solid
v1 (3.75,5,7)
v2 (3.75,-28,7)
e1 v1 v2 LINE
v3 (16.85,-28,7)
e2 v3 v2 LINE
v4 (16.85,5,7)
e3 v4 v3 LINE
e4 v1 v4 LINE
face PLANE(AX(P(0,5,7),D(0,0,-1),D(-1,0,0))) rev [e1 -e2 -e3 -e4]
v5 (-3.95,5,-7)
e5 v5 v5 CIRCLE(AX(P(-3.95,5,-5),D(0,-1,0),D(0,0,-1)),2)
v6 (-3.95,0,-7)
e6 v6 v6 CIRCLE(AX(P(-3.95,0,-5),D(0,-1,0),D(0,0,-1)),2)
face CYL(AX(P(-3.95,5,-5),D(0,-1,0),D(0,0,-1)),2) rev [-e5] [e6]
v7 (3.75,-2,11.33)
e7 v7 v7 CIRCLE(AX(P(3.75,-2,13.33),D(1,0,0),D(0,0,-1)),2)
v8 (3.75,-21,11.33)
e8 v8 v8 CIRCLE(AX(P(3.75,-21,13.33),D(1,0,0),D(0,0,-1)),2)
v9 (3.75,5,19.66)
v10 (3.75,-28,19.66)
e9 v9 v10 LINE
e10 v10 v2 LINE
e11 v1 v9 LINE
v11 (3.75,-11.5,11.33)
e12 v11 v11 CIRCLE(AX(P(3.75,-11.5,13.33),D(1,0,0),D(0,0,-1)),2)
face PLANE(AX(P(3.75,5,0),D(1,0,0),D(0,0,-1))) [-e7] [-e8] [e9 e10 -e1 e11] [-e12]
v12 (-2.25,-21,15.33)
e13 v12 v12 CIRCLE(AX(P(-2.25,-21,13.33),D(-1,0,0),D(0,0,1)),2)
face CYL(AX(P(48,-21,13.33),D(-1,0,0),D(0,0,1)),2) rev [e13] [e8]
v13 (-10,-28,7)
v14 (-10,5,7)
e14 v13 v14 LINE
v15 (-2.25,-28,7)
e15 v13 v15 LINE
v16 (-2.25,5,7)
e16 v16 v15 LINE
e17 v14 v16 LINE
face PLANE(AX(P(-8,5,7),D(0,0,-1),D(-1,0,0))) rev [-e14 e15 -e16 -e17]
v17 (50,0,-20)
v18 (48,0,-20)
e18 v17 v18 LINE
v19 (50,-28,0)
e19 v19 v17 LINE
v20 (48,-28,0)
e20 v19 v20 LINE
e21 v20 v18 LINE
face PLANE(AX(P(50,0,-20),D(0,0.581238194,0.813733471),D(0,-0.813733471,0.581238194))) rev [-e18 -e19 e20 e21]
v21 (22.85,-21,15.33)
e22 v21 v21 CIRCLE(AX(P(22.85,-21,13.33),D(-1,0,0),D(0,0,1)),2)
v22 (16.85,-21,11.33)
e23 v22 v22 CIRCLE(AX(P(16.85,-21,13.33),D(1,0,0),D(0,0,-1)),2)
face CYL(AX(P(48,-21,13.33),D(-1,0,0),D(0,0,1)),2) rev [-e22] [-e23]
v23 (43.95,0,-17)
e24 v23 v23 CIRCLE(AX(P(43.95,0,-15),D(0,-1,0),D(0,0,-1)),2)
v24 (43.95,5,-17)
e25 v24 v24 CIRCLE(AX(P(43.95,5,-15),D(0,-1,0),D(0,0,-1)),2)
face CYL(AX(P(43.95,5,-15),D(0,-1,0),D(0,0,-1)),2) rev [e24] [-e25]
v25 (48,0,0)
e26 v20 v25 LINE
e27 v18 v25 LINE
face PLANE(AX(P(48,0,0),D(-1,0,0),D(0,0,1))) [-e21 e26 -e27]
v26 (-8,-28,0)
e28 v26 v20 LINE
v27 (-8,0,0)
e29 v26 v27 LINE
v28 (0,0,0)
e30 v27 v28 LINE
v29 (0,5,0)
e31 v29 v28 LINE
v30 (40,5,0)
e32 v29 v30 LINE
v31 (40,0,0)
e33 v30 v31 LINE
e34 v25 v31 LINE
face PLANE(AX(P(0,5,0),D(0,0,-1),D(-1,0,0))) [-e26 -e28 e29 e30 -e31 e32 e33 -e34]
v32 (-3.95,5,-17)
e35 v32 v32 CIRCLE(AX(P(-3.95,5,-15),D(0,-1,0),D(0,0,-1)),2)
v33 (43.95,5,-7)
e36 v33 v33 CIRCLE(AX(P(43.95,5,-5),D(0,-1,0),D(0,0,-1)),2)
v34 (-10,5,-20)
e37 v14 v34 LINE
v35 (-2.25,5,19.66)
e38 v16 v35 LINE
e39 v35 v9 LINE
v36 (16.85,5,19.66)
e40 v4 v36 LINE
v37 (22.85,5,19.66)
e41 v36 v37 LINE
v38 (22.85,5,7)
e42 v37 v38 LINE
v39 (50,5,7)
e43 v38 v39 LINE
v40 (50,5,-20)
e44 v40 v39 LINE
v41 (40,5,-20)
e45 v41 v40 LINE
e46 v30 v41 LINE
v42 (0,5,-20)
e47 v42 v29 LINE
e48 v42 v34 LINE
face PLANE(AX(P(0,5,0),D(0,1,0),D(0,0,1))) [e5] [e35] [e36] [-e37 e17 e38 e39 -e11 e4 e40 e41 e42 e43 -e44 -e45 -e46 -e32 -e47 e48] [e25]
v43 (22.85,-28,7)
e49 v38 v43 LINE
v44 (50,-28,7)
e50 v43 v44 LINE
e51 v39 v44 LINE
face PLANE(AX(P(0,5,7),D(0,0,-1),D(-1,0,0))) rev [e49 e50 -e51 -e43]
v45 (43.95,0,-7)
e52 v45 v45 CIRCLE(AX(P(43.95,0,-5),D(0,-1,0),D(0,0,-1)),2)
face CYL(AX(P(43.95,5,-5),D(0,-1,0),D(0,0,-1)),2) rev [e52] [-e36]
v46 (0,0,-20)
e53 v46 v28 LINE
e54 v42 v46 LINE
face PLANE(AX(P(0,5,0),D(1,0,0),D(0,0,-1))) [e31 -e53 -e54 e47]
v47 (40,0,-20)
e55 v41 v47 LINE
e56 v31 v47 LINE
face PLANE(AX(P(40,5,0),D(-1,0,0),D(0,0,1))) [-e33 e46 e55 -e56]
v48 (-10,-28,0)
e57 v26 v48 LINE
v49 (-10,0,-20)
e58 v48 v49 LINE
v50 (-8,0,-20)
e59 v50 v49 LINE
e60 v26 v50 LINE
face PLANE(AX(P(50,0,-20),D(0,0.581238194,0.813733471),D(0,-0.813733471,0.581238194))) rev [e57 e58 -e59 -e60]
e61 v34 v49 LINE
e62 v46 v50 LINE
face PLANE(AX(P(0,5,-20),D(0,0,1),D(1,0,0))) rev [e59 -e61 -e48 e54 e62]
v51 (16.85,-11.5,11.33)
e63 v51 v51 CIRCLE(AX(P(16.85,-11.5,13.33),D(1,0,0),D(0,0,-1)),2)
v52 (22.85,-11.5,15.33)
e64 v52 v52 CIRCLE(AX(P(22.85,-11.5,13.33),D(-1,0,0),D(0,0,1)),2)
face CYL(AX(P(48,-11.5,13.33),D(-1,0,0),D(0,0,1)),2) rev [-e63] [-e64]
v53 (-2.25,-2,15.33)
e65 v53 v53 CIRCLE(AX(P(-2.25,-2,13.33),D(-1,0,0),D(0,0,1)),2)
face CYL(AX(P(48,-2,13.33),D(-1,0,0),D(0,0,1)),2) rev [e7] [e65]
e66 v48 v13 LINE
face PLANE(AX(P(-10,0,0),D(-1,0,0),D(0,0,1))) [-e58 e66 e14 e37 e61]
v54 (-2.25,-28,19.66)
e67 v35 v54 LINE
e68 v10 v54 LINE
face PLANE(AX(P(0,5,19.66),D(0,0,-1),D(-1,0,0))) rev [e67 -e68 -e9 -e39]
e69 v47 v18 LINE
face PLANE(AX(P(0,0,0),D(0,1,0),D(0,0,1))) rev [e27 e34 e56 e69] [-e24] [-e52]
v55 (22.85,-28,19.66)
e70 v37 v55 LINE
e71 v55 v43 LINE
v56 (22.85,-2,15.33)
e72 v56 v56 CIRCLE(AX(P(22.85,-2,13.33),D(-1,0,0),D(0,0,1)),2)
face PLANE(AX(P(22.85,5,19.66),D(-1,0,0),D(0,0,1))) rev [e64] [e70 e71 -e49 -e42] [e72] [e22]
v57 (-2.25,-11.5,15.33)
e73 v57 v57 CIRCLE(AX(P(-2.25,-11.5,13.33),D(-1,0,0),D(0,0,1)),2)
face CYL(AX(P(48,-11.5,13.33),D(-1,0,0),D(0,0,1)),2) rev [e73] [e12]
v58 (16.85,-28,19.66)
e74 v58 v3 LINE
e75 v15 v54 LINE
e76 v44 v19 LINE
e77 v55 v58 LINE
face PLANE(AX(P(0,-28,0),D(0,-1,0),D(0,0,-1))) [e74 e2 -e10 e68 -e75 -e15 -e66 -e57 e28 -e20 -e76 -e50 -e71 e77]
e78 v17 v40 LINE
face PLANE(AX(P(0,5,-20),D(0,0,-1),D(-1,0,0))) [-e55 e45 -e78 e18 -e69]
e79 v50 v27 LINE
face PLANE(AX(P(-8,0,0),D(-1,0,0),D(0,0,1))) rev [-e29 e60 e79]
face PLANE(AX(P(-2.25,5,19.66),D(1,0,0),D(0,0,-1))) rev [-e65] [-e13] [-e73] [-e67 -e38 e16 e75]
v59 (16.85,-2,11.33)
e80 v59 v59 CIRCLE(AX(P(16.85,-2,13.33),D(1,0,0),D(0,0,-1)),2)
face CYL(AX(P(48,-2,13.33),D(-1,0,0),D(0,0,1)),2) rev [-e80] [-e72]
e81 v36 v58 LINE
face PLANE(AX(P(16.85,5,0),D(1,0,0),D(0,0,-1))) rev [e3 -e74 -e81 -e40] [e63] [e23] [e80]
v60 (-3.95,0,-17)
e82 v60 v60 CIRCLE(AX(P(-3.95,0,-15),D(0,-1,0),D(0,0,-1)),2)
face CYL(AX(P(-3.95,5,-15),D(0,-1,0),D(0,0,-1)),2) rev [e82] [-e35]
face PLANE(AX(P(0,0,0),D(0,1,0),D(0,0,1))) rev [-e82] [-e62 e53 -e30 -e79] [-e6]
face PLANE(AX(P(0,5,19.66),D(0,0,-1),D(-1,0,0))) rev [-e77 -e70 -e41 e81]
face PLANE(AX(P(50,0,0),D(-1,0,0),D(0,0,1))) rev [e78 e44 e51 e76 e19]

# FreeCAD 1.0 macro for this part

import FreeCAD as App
import Part
import Sketcher
from FreeCAD import Vector
Q = App.Units.Quantity

doc = App.newDocument("Part")
params = doc.addObject("Spreadsheet::Sheet", "Params")
for row, (alias, value) in enumerate([
    ("sketch1_width", "8 mm"),
    ("sketch1_width2", "40 mm"),
    ("sketch1_height", "27 mm"),
    ("sketch1_height2", "20 mm"),
    ("sketch1_width3", "13.1 mm"),
    ("pad1_length", "5 mm"),
    ("sketch2_width", "36.6 mm"),
    ("sketch2_width2", "13.1 mm"),
    ("sketch2_height", "19.66 mm"),
    ("pad2_length", "28 mm"),
    ("sketch3_width", "5.75 mm"),
    ("sketch3_height", "12.66 mm"),
    ("sketch4_diameter", "4 mm"),
    ("sketch5_diameter", "4 mm"),
    ("sketch6_width", "28 mm"),
    ("sketch6_height", "7 mm"),
    ("pad3_length", "19.4 mm"),
    ("sketch7_width", "33 mm"),
    ("sketch7_height", "27 mm"),
    ("pad4_length", "2 mm"),
    ("sketch8_width", "33 mm"),
    ("sketch8_height", "27 mm"),
    ("pad5_length", "2 mm"),
    ("sketch9_width", "28 mm"),
    ("sketch9_height", "20 mm"),
], start=1):
    params.set(f"A{row}", alias)
    params.set(f"B{row}", "=" + value)
    params.setAlias(f"B{row}", alias)

body = doc.addObject("PartDesign::Body", "Body")

# Sketch on XZ plane
sketch1 = doc.addObject("Sketcher::SketchObject", "Sketch")
body.addObject(sketch1)
sketch1.AttachmentSupport = (doc.XZ_Plane, [""])
sketch1.MapMode = "FlatFace"
sketch1.addGeometry([
    Part.LineSegment(Vector(-8, -20, 0), Vector(-8, 20, 0)),  # 0
    Part.LineSegment(Vector(-8, 20, 0), Vector(4, 20, 0)),  # 1
    Part.LineSegment(Vector(4, 20, 0), Vector(4, 7, 0)),  # 2
    Part.LineSegment(Vector(4, 7, 0), Vector(17, 7, 0)),  # 3
    Part.LineSegment(Vector(17, 7, 0), Vector(17, 20, 0)),  # 4
    Part.LineSegment(Vector(17, 20, 0), Vector(29, 20, 0)),  # 5
    Part.LineSegment(Vector(29, 20, 0), Vector(29, 7, 0)),  # 6
    Part.LineSegment(Vector(29, 7, 0), Vector(48, 7, 0)),  # 7
    Part.LineSegment(Vector(48, 7, 0), Vector(48, -20, 0)),  # 8
    Part.LineSegment(Vector(48, -20, 0), Vector(40, -20, 0)),  # 9
    Part.LineSegment(Vector(40, -20, 0), Vector(40, 0, 0)),  # 10
    Part.LineSegment(Vector(40, 0, 0), Vector(0, 0, 0)),  # 11
    Part.LineSegment(Vector(0, 0, 0), Vector(0, -20, 0)),  # 12
    Part.LineSegment(Vector(0, -20, 0), Vector(-8, -20, 0)),  # 13
], False)
sketch1.addConstraint([
    Sketcher.Constraint("Coincident", 0, 2, 1, 1),
    Sketcher.Constraint("Coincident", 1, 2, 2, 1),
    Sketcher.Constraint("Coincident", 2, 2, 3, 1),
    Sketcher.Constraint("Coincident", 3, 2, 4, 1),
    Sketcher.Constraint("Coincident", 4, 2, 5, 1),
    Sketcher.Constraint("Coincident", 5, 2, 6, 1),
    Sketcher.Constraint("Coincident", 6, 2, 7, 1),
    Sketcher.Constraint("Coincident", 7, 2, 8, 1),
    Sketcher.Constraint("Coincident", 8, 2, 9, 1),
    Sketcher.Constraint("Coincident", 9, 2, 10, 1),
    Sketcher.Constraint("Coincident", 10, 2, 11, 1),
    Sketcher.Constraint("Coincident", 11, 2, 12, 1),
    Sketcher.Constraint("Coincident", 12, 2, 13, 1),
    Sketcher.Constraint("Coincident", 13, 2, 0, 1),
    Sketcher.Constraint("Vertical", 0),
    Sketcher.Constraint("Horizontal", 1),
    Sketcher.Constraint("Vertical", 2),
    Sketcher.Constraint("Horizontal", 3),
    Sketcher.Constraint("Vertical", 4),
    Sketcher.Constraint("Horizontal", 5),
    Sketcher.Constraint("Vertical", 6),
    Sketcher.Constraint("Horizontal", 7),
    Sketcher.Constraint("Vertical", 8),
    Sketcher.Constraint("Horizontal", 9),
    Sketcher.Constraint("Vertical", 10),
    Sketcher.Constraint("Horizontal", 11),
    Sketcher.Constraint("Vertical", 12),
    Sketcher.Constraint("Horizontal", 13),
    Sketcher.Constraint("Coincident", 11, 2, -1, 1),
    Sketcher.Constraint("Horizontal", 1, 2, 4, 2),
    Sketcher.Constraint("Horizontal", 3, 2, 6, 2),
    Sketcher.Constraint("Horizontal", 9, 2, 12, 2),
    Sketcher.Constraint("Equal", 1, 5),
    Sketcher.Constraint("Equal", 9, 13),
    Sketcher.Constraint("DistanceX", 9, 2, 9, 1, Q("8 mm")),
    Sketcher.Constraint("DistanceX", 11, 2, 11, 1, Q("40 mm")),
    Sketcher.Constraint("DistanceY", 8, 2, 8, 1, Q("27 mm")),
    Sketcher.Constraint("DistanceY", 10, 1, 10, 2, Q("20 mm")),
    Sketcher.Constraint("DistanceX", 3, 1, 3, 2, Q("13.1 mm")),
    Sketcher.Constraint("DistanceX", 7, 1, 7, 2, Q("19.4 mm")),
    Sketcher.Constraint("DistanceY", 0, 1, 0, 2, Q("39.66 mm")),
])
sketch1.setExpression("Constraints[34]", "Params.sketch1_width")
sketch1.setExpression("Constraints[35]", "Params.sketch1_width2")
sketch1.setExpression("Constraints[36]", "Params.sketch1_height")
sketch1.setExpression("Constraints[37]", "Params.sketch1_height2")
sketch1.setExpression("Constraints[38]", "Params.sketch1_width3")
pad1 = doc.addObject("PartDesign::Pad", "Pad")
body.addObject(pad1)
pad1.Profile = sketch1
pad1.setExpression("Length", "Params.pad1_length")
pad1.Reversed = True

# Sketch on XZ plane
sketch2 = doc.addObject("Sketcher::SketchObject", "Sketch001")
body.addObject(sketch2)
sketch2.AttachmentSupport = (doc.XZ_Plane, [""])
sketch2.MapMode = "FlatFace"
sketch2.addGeometry([
    Part.LineSegment(Vector(4, 20, 0), Vector(-8, 20, 0)),  # 0
    Part.LineSegment(Vector(-8, 20, 0), Vector(-8, 0, 0)),  # 1
    Part.LineSegment(Vector(-8, 0, 0), Vector(29, 0, 0)),  # 2
    Part.LineSegment(Vector(29, 0, 0), Vector(29, 20, 0)),  # 3
    Part.LineSegment(Vector(29, 20, 0), Vector(17, 20, 0)),  # 4
    Part.LineSegment(Vector(17, 20, 0), Vector(17, 7, 0)),  # 5
    Part.LineSegment(Vector(17, 7, 0), Vector(4, 7, 0)),  # 6
    Part.LineSegment(Vector(4, 7, 0), Vector(4, 20, 0)),  # 7
], False)
sketch2.addConstraint([
    Sketcher.Constraint("Coincident", 0, 2, 1, 1),
    Sketcher.Constraint("Coincident", 1, 2, 2, 1),
    Sketcher.Constraint("Coincident", 2, 2, 3, 1),
    Sketcher.Constraint("Coincident", 3, 2, 4, 1),
    Sketcher.Constraint("Coincident", 4, 2, 5, 1),
    Sketcher.Constraint("Coincident", 5, 2, 6, 1),
    Sketcher.Constraint("Coincident", 6, 2, 7, 1),
    Sketcher.Constraint("Coincident", 7, 2, 0, 1),
    Sketcher.Constraint("Horizontal", 0),
    Sketcher.Constraint("Vertical", 1),
    Sketcher.Constraint("Horizontal", 2),
    Sketcher.Constraint("Vertical", 3),
    Sketcher.Constraint("Horizontal", 4),
    Sketcher.Constraint("Vertical", 5),
    Sketcher.Constraint("Horizontal", 6),
    Sketcher.Constraint("Vertical", 7),
    Sketcher.Constraint("PointOnObject", 1, 2, -1),
    Sketcher.Constraint("Horizontal", 0, 2, 3, 2),
    Sketcher.Constraint("Equal", 0, 4),
    Sketcher.Constraint("DistanceX", 2, 1, 2, 2, Q("36.6 mm")),
    Sketcher.Constraint("DistanceX", 6, 2, 6, 1, Q("13.1 mm")),
    Sketcher.Constraint("DistanceX", 0, 2, -1, 1, Q("8 mm")),
    Sketcher.Constraint("DistanceY", -1, 1, 5, 2, Q("7 mm")),
    Sketcher.Constraint("DistanceY", 1, 2, 1, 1, Q("19.66 mm")),
])
sketch2.setExpression("Constraints[19]", "Params.sketch2_width")
sketch2.setExpression("Constraints[20]", "Params.sketch2_width2")
sketch2.setExpression("Constraints[23]", "Params.sketch2_height")
pad2 = doc.addObject("PartDesign::Pad", "Pad001")
body.addObject(pad2)
pad2.Profile = sketch2
pad2.setExpression("Length", "Params.pad2_length")

# Sketch on XZ plane
sketch3 = doc.addObject("Sketcher::SketchObject", "Sketch002")
body.addObject(sketch3)
sketch3.AttachmentSupport = (doc.XZ_Plane, [""])
sketch3.MapMode = "FlatFace"
sketch3.AttachmentOffset = App.Placement(Vector(0, 0, 28), App.Rotation())
sketch3.addGeometry([
    Part.LineSegment(Vector(-8, 20, 0), Vector(-8, 7, 0)),  # 0
    Part.LineSegment(Vector(-8, 7, 0), Vector(-2, 7, 0)),  # 1
    Part.LineSegment(Vector(-2, 7, 0), Vector(-2, 20, 0)),  # 2
    Part.LineSegment(Vector(-2, 20, 0), Vector(-8, 20, 0)),  # 3
    Part.LineSegment(Vector(23, 20, 0), Vector(23, 7, 0)),  # 4
    Part.LineSegment(Vector(23, 7, 0), Vector(29, 7, 0)),  # 5
    Part.LineSegment(Vector(29, 7, 0), Vector(29, 20, 0)),  # 6
    Part.LineSegment(Vector(29, 20, 0), Vector(23, 20, 0)),  # 7
], False)
sketch3.addConstraint([
    Sketcher.Constraint("Coincident", 0, 2, 1, 1),
    Sketcher.Constraint("Coincident", 1, 2, 2, 1),
    Sketcher.Constraint("Coincident", 2, 2, 3, 1),
    Sketcher.Constraint("Coincident", 3, 2, 0, 1),
    Sketcher.Constraint("Coincident", 4, 2, 5, 1),
    Sketcher.Constraint("Coincident", 5, 2, 6, 1),
    Sketcher.Constraint("Coincident", 6, 2, 7, 1),
    Sketcher.Constraint("Coincident", 7, 2, 4, 1),
    Sketcher.Constraint("Vertical", 0),
    Sketcher.Constraint("Horizontal", 1),
    Sketcher.Constraint("Vertical", 2),
    Sketcher.Constraint("Horizontal", 3),
    Sketcher.Constraint("Vertical", 4),
    Sketcher.Constraint("Horizontal", 5),
    Sketcher.Constraint("Vertical", 6),
    Sketcher.Constraint("Horizontal", 7),
    Sketcher.Constraint("Horizontal", 1, 2, 4, 2),
    Sketcher.Constraint("Horizontal", 3, 2, 6, 2),
    Sketcher.Constraint("Equal", 3, 5),
    Sketcher.Constraint("DistanceX", 0, 2, -1, 1, Q("8 mm")),
    Sketcher.Constraint("DistanceY", -1, 1, 0, 2, Q("7 mm")),
    Sketcher.Constraint("DistanceX", 1, 1, 1, 2, Q("5.75 mm")),
    Sketcher.Constraint("DistanceY", 0, 2, 0, 1, Q("12.66 mm")),
    Sketcher.Constraint("DistanceX", -1, 1, 5, 2, Q("28.6 mm")),
])
sketch3.setExpression("Constraints[21]", "Params.sketch3_width")
sketch3.setExpression("Constraints[22]", "Params.sketch3_height")
pocket1 = doc.addObject("PartDesign::Pocket", "Pocket")
body.addObject(pocket1)
pocket1.Profile = sketch3
pocket1.Type = "ThroughAll"

# Sketch on YZ plane
sketch4 = doc.addObject("Sketcher::SketchObject", "Sketch003")
body.addObject(sketch4)
sketch4.AttachmentSupport = (doc.YZ_Plane, [""])
sketch4.MapMode = "FlatFace"
sketch4.AttachmentOffset = App.Placement(Vector(0, 0, -2.25), App.Rotation())
sketch4.addGeometry([
    Part.Circle(Vector(-2, 13.3, 0), Vector(0, 0, 1), 2),
    Part.Circle(Vector(-21, 13.3, 0), Vector(0, 0, 1), 2),
    Part.Circle(Vector(-11.5, 13.3, 0), Vector(0, 0, 1), 2),
], False)
sketch4.addConstraint([
    Sketcher.Constraint("Equal", 0, 1),
    Sketcher.Constraint("Equal", 1, 2),
    Sketcher.Constraint("Horizontal", 0, 3, 1, 3),
    Sketcher.Constraint("Horizontal", 1, 3, 2, 3),
    Sketcher.Constraint("Diameter", 0, Q("4 mm")),
    Sketcher.Constraint("DistanceX", 0, 3, -1, 1, Q("2 mm")),
    Sketcher.Constraint("DistanceX", 1, 3, -1, 1, Q("21 mm")),
    Sketcher.Constraint("DistanceX", 2, 3, -1, 1, Q("11.5 mm")),
    Sketcher.Constraint("DistanceY", -1, 1, 0, 3, Q("13.33 mm")),
])
sketch4.setExpression("Constraints[4]", "Params.sketch4_diameter")
pocket2 = doc.addObject("PartDesign::Pocket", "Pocket001")
body.addObject(pocket2)
pocket2.Profile = sketch4
pocket2.Type = "ThroughAll"
pocket2.Reversed = True

# Sketch on XZ plane
sketch5 = doc.addObject("Sketcher::SketchObject", "Sketch004")
body.addObject(sketch5)
sketch5.AttachmentSupport = (doc.XZ_Plane, [""])
sketch5.MapMode = "FlatFace"
sketch5.addGeometry([
    Part.Circle(Vector(44, -5, 0), Vector(0, 0, 1), 2),
    Part.Circle(Vector(44, -15, 0), Vector(0, 0, 1), 2),
    Part.Circle(Vector(-4, -5, 0), Vector(0, 0, 1), 2),
    Part.Circle(Vector(-4, -15, 0), Vector(0, 0, 1), 2),
], False)
sketch5.addConstraint([
    Sketcher.Constraint("Equal", 0, 1),
    Sketcher.Constraint("Equal", 1, 2),
    Sketcher.Constraint("Equal", 2, 3),
    Sketcher.Constraint("Horizontal", 0, 3, 2, 3),
    Sketcher.Constraint("Horizontal", 1, 3, 3, 3),
    Sketcher.Constraint("Vertical", 0, 3, 1, 3),
    Sketcher.Constraint("Vertical", 2, 3, 3, 3),
    Sketcher.Constraint("Diameter", 0, Q("4 mm")),
    Sketcher.Constraint("DistanceY", 0, 3, -1, 1, Q("5 mm")),
    Sketcher.Constraint("DistanceY", 1, 3, -1, 1, Q("15 mm")),
    Sketcher.Constraint("DistanceX", 2, 3, 0, 3, Q("47.9 mm")),
    Sketcher.Constraint("DistanceX", -1, 1, 0, 3, Q("43.95 mm")),
])
sketch5.setExpression("Constraints[7]", "Params.sketch5_diameter")
pocket3 = doc.addObject("PartDesign::Pocket", "Pocket002")
body.addObject(pocket3)
pocket3.Profile = sketch5
pocket3.Type = "ThroughAll"

# Sketch on YZ plane
sketch6 = doc.addObject("Sketcher::SketchObject", "Sketch005")
body.addObject(sketch6)
sketch6.AttachmentSupport = (doc.YZ_Plane, [""])
sketch6.MapMode = "FlatFace"
sketch6.AttachmentOffset = App.Placement(Vector(0, 0, 28.6), App.Rotation())
sketch6.addGeometry([
    Part.LineSegment(Vector(0, 7, 0), Vector(-28, 7, 0)),
    Part.LineSegment(Vector(-28, 7, 0), Vector(-28, 0, 0)),
    Part.LineSegment(Vector(-28, 0, 0), Vector(0, 0, 0)),
    Part.LineSegment(Vector(0, 0, 0), Vector(0, 7, 0)),
], False)
sketch6.addConstraint([
    Sketcher.Constraint("Coincident", 0, 2, 1, 1),
    Sketcher.Constraint("Coincident", 1, 2, 2, 1),
    Sketcher.Constraint("Coincident", 2, 2, 3, 1),
    Sketcher.Constraint("Coincident", 3, 2, 0, 1),
    Sketcher.Constraint("Horizontal", 0),
    Sketcher.Constraint("Vertical", 1),
    Sketcher.Constraint("Horizontal", 2),
    Sketcher.Constraint("Vertical", 3),
    Sketcher.Constraint("Coincident", 2, 2, -1, 1),
    Sketcher.Constraint("DistanceX", 0, 2, 0, 1, Q("28 mm")),
    Sketcher.Constraint("DistanceY", 1, 2, 1, 1, Q("7 mm")),
])
sketch6.setExpression("Constraints[9]", "Params.sketch6_width")
sketch6.setExpression("Constraints[10]", "Params.sketch6_height")
pad3 = doc.addObject("PartDesign::Pad", "Pad002")
body.addObject(pad3)
pad3.Profile = sketch6
pad3.setExpression("Length", "Params.pad3_length")

# Sketch on YZ plane
sketch7 = doc.addObject("Sketcher::SketchObject", "Sketch006")
body.addObject(sketch7)
sketch7.AttachmentSupport = (doc.YZ_Plane, [""])
sketch7.MapMode = "FlatFace"
sketch7.AttachmentOffset = App.Placement(Vector(0, 0, 48), App.Rotation())
sketch7.addGeometry([
    Part.LineSegment(Vector(5, 7, 0), Vector(-28, 7, 0)),
    Part.LineSegment(Vector(-28, 7, 0), Vector(-28, -20, 0)),
    Part.LineSegment(Vector(-28, -20, 0), Vector(5, -20, 0)),
    Part.LineSegment(Vector(5, -20, 0), Vector(5, 7, 0)),
], False)
sketch7.addConstraint([
    Sketcher.Constraint("Coincident", 0, 2, 1, 1),
    Sketcher.Constraint("Coincident", 1, 2, 2, 1),
    Sketcher.Constraint("Coincident", 2, 2, 3, 1),
    Sketcher.Constraint("Coincident", 3, 2, 0, 1),
    Sketcher.Constraint("Horizontal", 0),
    Sketcher.Constraint("Vertical", 1),
    Sketcher.Constraint("Horizontal", 2),
    Sketcher.Constraint("Vertical", 3),
    Sketcher.Constraint("DistanceX", 0, 2, 0, 1, Q("33 mm")),
    Sketcher.Constraint("DistanceY", 1, 2, 1, 1, Q("27 mm")),
    Sketcher.Constraint("DistanceX", 0, 2, -1, 1, Q("28 mm")),
    Sketcher.Constraint("DistanceY", -1, 1, 0, 2, Q("7 mm")),
])
sketch7.setExpression("Constraints[8]", "Params.sketch7_width")
sketch7.setExpression("Constraints[9]", "Params.sketch7_height")
pad4 = doc.addObject("PartDesign::Pad", "Pad003")
body.addObject(pad4)
pad4.Profile = sketch7
pad4.setExpression("Length", "Params.pad4_length")

# Sketch on YZ plane
sketch8 = doc.addObject("Sketcher::SketchObject", "Sketch007")
body.addObject(sketch8)
sketch8.AttachmentSupport = (doc.YZ_Plane, [""])
sketch8.MapMode = "FlatFace"
sketch8.AttachmentOffset = App.Placement(Vector(0, 0, -8), App.Rotation())
sketch8.addGeometry([
    Part.LineSegment(Vector(5, -20, 0), Vector(-28, -20, 0)),
    Part.LineSegment(Vector(-28, -20, 0), Vector(-28, 7, 0)),
    Part.LineSegment(Vector(-28, 7, 0), Vector(5, 7, 0)),
    Part.LineSegment(Vector(5, 7, 0), Vector(5, -20, 0)),
], False)
sketch8.addConstraint([
    Sketcher.Constraint("Coincident", 0, 2, 1, 1),
    Sketcher.Constraint("Coincident", 1, 2, 2, 1),
    Sketcher.Constraint("Coincident", 2, 2, 3, 1),
    Sketcher.Constraint("Coincident", 3, 2, 0, 1),
    Sketcher.Constraint("Horizontal", 0),
    Sketcher.Constraint("Vertical", 1),
    Sketcher.Constraint("Horizontal", 2),
    Sketcher.Constraint("Vertical", 3),
    Sketcher.Constraint("DistanceX", 0, 2, 0, 1, Q("33 mm")),
    Sketcher.Constraint("DistanceY", 1, 1, 1, 2, Q("27 mm")),
    Sketcher.Constraint("DistanceX", 0, 2, -1, 1, Q("28 mm")),
    Sketcher.Constraint("DistanceY", 0, 2, -1, 1, Q("20 mm")),
])
sketch8.setExpression("Constraints[8]", "Params.sketch8_width")
sketch8.setExpression("Constraints[9]", "Params.sketch8_height")
pad5 = doc.addObject("PartDesign::Pad", "Pad004")
body.addObject(pad5)
pad5.Profile = sketch8
pad5.setExpression("Length", "Params.pad5_length")
pad5.Reversed = True

# Sketch on YZ plane
sketch9 = doc.addObject("Sketcher::SketchObject", "Sketch008")
body.addObject(sketch9)
sketch9.AttachmentSupport = (doc.YZ_Plane, [""])
sketch9.MapMode = "FlatFace"
sketch9.AttachmentOffset = App.Placement(Vector(0, 0, 48), App.Rotation())
sketch9.addGeometry([
    Part.LineSegment(Vector(-28, 0, 0), Vector(0, -20, 0)),
    Part.LineSegment(Vector(0, -20, 0), Vector(-28, -20, 0)),
    Part.LineSegment(Vector(-28, -20, 0), Vector(-28, 0, 0)),
], False)
sketch9.addConstraint([
    Sketcher.Constraint("Coincident", 0, 2, 1, 1),
    Sketcher.Constraint("Coincident", 1, 2, 2, 1),
    Sketcher.Constraint("Coincident", 2, 2, 0, 1),
    Sketcher.Constraint("Horizontal", 1),
    Sketcher.Constraint("Vertical", 2),
    Sketcher.Constraint("PointOnObject", 0, 2, -2),
    Sketcher.Constraint("PointOnObject", 2, 2, -1),
    Sketcher.Constraint("DistanceX", 1, 2, 1, 1, Q("28 mm")),
    Sketcher.Constraint("DistanceY", 2, 1, 2, 2, Q("20 mm")),
])
sketch9.setExpression("Constraints[7]", "Params.sketch9_width")
sketch9.setExpression("Constraints[8]", "Params.sketch9_height")
pocket4 = doc.addObject("PartDesign::Pocket", "Pocket003")
body.addObject(pocket4)
pocket4.Profile = sketch9
pocket4.Type = "ThroughAll"
pocket4.Midplane = True

doc.recompute()
